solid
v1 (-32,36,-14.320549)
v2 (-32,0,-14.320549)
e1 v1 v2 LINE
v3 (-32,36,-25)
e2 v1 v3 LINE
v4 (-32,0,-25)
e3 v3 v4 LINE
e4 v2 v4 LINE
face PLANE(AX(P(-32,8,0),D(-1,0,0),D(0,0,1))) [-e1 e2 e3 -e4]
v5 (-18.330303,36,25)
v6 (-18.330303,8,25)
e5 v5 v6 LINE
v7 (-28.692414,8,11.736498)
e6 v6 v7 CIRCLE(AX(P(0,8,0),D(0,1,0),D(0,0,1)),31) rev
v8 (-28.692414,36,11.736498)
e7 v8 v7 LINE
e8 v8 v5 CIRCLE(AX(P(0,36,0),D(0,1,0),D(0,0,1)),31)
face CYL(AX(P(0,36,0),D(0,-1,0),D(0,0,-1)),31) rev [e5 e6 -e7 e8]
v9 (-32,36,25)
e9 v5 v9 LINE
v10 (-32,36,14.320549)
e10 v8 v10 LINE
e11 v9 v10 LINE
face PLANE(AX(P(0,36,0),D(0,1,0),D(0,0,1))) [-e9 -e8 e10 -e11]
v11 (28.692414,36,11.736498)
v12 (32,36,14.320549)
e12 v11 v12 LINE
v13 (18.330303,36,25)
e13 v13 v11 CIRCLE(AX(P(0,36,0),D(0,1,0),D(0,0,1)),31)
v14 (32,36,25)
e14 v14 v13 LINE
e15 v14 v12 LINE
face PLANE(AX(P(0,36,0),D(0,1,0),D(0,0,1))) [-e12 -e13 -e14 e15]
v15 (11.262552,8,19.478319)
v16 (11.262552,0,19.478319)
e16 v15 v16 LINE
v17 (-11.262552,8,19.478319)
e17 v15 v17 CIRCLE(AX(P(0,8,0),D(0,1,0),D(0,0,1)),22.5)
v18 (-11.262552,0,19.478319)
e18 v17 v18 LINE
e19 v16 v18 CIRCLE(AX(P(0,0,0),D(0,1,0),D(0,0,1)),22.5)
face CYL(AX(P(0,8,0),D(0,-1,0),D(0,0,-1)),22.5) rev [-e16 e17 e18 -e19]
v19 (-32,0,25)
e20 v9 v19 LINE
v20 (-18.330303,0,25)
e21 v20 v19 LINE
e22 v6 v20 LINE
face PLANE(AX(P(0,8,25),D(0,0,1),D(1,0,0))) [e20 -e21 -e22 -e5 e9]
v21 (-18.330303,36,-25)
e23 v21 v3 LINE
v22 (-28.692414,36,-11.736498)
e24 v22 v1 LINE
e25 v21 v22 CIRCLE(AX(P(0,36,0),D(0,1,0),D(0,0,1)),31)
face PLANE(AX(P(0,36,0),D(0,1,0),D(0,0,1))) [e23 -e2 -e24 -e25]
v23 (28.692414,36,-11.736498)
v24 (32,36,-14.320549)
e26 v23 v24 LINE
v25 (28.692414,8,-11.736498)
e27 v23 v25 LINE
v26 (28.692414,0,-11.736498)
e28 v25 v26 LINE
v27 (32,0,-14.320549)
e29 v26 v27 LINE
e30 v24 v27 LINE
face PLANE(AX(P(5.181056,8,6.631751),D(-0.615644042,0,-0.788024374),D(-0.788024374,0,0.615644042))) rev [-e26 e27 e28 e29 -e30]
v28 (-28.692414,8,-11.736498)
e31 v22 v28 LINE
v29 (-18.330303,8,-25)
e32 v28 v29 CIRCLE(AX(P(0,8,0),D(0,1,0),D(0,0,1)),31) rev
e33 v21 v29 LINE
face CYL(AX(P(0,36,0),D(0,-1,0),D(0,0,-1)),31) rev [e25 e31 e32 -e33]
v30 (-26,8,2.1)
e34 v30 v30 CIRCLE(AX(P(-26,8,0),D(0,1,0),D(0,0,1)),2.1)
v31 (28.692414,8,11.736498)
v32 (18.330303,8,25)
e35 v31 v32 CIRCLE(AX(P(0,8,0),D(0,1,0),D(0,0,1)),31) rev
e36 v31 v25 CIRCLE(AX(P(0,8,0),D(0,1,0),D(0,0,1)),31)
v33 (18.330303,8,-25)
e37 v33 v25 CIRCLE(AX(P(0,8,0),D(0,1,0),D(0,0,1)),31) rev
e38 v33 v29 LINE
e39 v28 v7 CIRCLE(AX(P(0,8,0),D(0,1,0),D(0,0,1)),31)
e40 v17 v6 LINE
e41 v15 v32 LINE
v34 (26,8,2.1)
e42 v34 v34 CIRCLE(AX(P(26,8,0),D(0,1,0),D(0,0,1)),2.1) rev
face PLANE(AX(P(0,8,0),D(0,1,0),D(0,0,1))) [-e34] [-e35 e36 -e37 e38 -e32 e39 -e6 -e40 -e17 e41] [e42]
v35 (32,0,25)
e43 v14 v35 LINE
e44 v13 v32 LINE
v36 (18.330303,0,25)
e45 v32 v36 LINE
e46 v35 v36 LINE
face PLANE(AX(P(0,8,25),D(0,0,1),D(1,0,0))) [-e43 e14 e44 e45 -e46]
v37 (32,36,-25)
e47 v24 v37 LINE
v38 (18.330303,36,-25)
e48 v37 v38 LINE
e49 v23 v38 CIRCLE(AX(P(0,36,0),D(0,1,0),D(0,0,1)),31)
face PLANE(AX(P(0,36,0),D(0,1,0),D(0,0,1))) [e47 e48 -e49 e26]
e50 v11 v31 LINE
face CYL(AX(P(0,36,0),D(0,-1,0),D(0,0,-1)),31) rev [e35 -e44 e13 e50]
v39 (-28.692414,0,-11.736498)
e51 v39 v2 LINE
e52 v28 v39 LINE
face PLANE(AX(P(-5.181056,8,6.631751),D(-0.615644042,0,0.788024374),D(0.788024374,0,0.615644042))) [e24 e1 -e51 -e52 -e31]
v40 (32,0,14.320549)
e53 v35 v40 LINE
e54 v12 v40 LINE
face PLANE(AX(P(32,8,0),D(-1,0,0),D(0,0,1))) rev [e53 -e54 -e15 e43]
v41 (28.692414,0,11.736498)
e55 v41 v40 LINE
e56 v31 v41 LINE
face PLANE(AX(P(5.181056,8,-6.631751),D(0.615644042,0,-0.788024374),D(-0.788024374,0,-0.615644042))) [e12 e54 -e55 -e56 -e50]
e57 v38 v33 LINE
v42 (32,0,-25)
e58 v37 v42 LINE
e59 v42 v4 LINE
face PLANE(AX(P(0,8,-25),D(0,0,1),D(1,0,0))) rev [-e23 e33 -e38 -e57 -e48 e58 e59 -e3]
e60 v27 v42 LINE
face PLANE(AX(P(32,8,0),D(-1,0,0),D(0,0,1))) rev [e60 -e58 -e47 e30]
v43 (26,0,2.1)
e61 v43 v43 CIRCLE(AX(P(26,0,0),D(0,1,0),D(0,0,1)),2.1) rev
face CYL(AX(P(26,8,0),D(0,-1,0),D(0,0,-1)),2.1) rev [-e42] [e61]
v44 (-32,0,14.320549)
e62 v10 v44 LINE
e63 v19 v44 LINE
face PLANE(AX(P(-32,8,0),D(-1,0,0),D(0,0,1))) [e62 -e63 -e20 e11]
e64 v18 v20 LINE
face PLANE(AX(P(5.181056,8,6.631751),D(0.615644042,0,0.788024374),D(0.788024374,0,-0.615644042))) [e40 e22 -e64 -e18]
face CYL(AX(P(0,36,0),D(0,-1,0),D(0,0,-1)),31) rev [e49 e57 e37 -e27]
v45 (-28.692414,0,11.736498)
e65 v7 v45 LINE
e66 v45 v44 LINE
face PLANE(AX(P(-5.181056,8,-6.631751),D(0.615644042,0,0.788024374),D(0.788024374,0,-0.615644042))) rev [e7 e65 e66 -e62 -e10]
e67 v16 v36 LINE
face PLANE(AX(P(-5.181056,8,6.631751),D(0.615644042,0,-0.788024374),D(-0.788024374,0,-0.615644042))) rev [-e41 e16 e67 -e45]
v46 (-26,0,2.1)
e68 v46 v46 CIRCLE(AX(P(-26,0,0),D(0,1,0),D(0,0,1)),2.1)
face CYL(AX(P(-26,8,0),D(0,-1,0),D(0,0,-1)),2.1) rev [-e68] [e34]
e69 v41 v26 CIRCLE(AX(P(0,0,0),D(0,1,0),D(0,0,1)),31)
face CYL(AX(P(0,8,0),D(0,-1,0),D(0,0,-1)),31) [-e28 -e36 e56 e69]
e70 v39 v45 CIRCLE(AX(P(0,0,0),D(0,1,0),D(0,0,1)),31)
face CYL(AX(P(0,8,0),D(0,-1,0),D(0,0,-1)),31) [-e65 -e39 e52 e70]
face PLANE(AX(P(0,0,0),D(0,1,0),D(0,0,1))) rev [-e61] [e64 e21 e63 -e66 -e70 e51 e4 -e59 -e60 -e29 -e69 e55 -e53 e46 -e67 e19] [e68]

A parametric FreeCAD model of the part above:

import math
import FreeCAD as App
import Part
import Sketcher
Q = App.Units.Quantity

doc = App.newDocument("Part")
body = doc.addObject("PartDesign::Body", "Body")

# Sketch on XZ plane
sketch1 = body.newObject("Sketcher::SketchObject", "Sketch")
sketch1.AttachmentSupport = (doc.getObject("XZ_Plane"), [""])
sketch1.MapMode = "FlatFace"
sketch1.addGeometry([
    Part.LineSegment(App.Vector(18.330303, 25, 0), App.Vector(32, 25, 0)),  # 0
    Part.LineSegment(App.Vector(32, 25, 0), App.Vector(32, 14.320549, 0)),  # 1
    Part.LineSegment(App.Vector(32, 14.320549, 0), App.Vector(28.692414, 11.736498, 0)),  # 2
    Part.ArcOfCircle(Part.Circle(App.Vector(0, 0, 0), App.Vector(0, 0, 1), 31), math.radians(-22.246786), math.radians(22.246786)),  # 3
    Part.LineSegment(App.Vector(28.692414, -11.736498, 0), App.Vector(32, -14.320549, 0)),  # 4
    Part.LineSegment(App.Vector(32, -14.320549, 0), App.Vector(32, -25, 0)),  # 5
    Part.LineSegment(App.Vector(32, -25, 0), App.Vector(-32, -25, 0)),  # 6
    Part.LineSegment(App.Vector(-32, -25, 0), App.Vector(-32, -14.320549, 0)),  # 7
    Part.LineSegment(App.Vector(-32, -14.320549, 0), App.Vector(-28.692414, -11.736498, 0)),  # 8
    Part.ArcOfCircle(Part.Circle(App.Vector(0, 0, 0), App.Vector(0, 0, 1), 31), math.radians(157.753214), math.radians(202.246786)),  # 9
    Part.LineSegment(App.Vector(-28.692414, 11.736498, 0), App.Vector(-32, 14.320549, 0)),  # 10
    Part.LineSegment(App.Vector(-32, 14.320549, 0), App.Vector(-32, 25, 0)),  # 11
    Part.LineSegment(App.Vector(-32, 25, 0), App.Vector(-18.330303, 25, 0)),  # 12
    Part.LineSegment(App.Vector(-18.330303, 25, 0), App.Vector(-11.262552, 19.478319, 0)),  # 13
    Part.ArcOfCircle(Part.Circle(App.Vector(0, 0, 0), App.Vector(0, 0, 1), 22.5), math.radians(120.036914), math.radians(419.963086)),  # 14
    Part.LineSegment(App.Vector(11.262552, 19.478319, 0), App.Vector(18.330303, 25, 0)),  # 15
    Part.Circle(App.Vector(-26, 0, 0), App.Vector(0, 0, 1), 2.1),  # 16
    Part.Circle(App.Vector(26, 0, 0), App.Vector(0, 0, 1), 2.1),  # 17
], False)
sketch1.addConstraint([
    Sketcher.Constraint("Coincident", 0, 2, 1, 1),
    Sketcher.Constraint("Coincident", 1, 2, 2, 1),
    Sketcher.Constraint("Coincident", 2, 2, 3, 2),
    Sketcher.Constraint("Coincident", 3, 1, 4, 1),
    Sketcher.Constraint("Coincident", 4, 2, 5, 1),
    Sketcher.Constraint("Coincident", 5, 2, 6, 1),
    Sketcher.Constraint("Coincident", 6, 2, 7, 1),
    Sketcher.Constraint("Coincident", 7, 2, 8, 1),
    Sketcher.Constraint("Coincident", 8, 2, 9, 2),
    Sketcher.Constraint("Coincident", 9, 1, 10, 1),
    Sketcher.Constraint("Coincident", 10, 2, 11, 1),
    Sketcher.Constraint("Coincident", 11, 2, 12, 1),
    Sketcher.Constraint("Coincident", 12, 2, 13, 1),
    Sketcher.Constraint("Coincident", 13, 2, 14, 1),
    Sketcher.Constraint("Coincident", 14, 2, 15, 1),
    Sketcher.Constraint("Coincident", 15, 2, 0, 1),
    Sketcher.Constraint("Horizontal", 0),
    Sketcher.Constraint("Vertical", 1),
    Sketcher.Constraint("Vertical", 5),
    Sketcher.Constraint("Horizontal", 6),
    Sketcher.Constraint("Vertical", 7),
    Sketcher.Constraint("Vertical", 11),
    Sketcher.Constraint("Horizontal", 12),
    Sketcher.Constraint("Coincident", 3, 3, -1, 1),
    Sketcher.Constraint("Coincident", 9, 3, -1, 1),
    Sketcher.Constraint("Coincident", 14, 3, -1, 1),
    Sketcher.Constraint("Equal", 3, 9),
    Sketcher.Constraint("Equal", 16, 17),
    Sketcher.Constraint("Symmetric", 16, 3, 17, 3, -1, 1),
    Sketcher.Constraint("Symmetric", 0, 2, 6, 2, -1, 1),
    Sketcher.Constraint("Symmetric", 4, 2, 10, 2, -1, 1),
    Sketcher.Constraint("Symmetric", 4, 2, 7, 2, -2),
    Sketcher.Constraint("Symmetric", 12, 2, 15, 2, -2),
    Sketcher.Constraint("PointOnObject", 16, 3, -1),
    Sketcher.Constraint("Parallel", 2, 8),
    Sketcher.Constraint("Parallel", 4, 10),
    Sketcher.Constraint("Parallel", 10, 13),
    Sketcher.Constraint("Parallel", 8, 15),
    Sketcher.Constraint("Horizontal", 3, 1, 8, 2),
    Sketcher.Constraint("Horizontal", 2, 2, 9, 1),
    Sketcher.Constraint("Radius", 3, Q("31 mm")),
    Sketcher.Constraint("Diameter", 16, Q("4.2 mm")),
    Sketcher.Constraint("Radius", 14, Q("22.5 mm")),
    Sketcher.Constraint("DistanceX", 6, 2, 6, 1, Q("64 mm")),
    Sketcher.Constraint("DistanceX", 16, 3, -1, 1, Q("26 mm")),
    Sketcher.Constraint("DistanceY", -1, 1, 0, 2, Q("25 mm")),
    Sketcher.Constraint("DistanceY", 1, 2, 1, 1, Q("10.679451 mm")),
    Sketcher.Constraint("Distance", 13, Q("8.96895 mm")),
    Sketcher.Constraint("DistanceX", 0, 1, 0, 2, Q("13.669697 mm")),
])
pad1 = body.newObject("PartDesign::Pad", "Pad")
pad1.Profile = sketch1
pad1.Length = 8
pad1.Reversed = True

# Sketch on XZ plane
sketch2 = body.newObject("Sketcher::SketchObject", "Sketch001")
sketch2.AttachmentSupport = (doc.getObject("XZ_Plane"), [""])
sketch2.MapMode = "FlatFace"
sketch2.addGeometry([
    Part.LineSegment(App.Vector(28.692414, -11.736498, 0), App.Vector(32, -14.320549, 0)),  # 0
    Part.LineSegment(App.Vector(32, -14.320549, 0), App.Vector(32, -25, 0)),  # 1
    Part.LineSegment(App.Vector(32, -25, 0), App.Vector(18.330303, -25, 0)),  # 2
    Part.ArcOfCircle(Part.Circle(App.Vector(0, 0, 0), App.Vector(0, 0, 1), 31), math.radians(-53.750679), math.radians(-22.246786)),  # 3
    Part.LineSegment(App.Vector(-32, -25, 0), App.Vector(-32, -14.320549, 0)),  # 4
    Part.LineSegment(App.Vector(-32, -14.320549, 0), App.Vector(-28.692414, -11.736498, 0)),  # 5
    Part.ArcOfCircle(Part.Circle(App.Vector(0, 0, 0), App.Vector(0, 0, 1), 31), math.radians(-157.753214), math.radians(-126.249321)),  # 6
    Part.LineSegment(App.Vector(-18.330303, -25, 0), App.Vector(-32, -25, 0)),  # 7
    Part.LineSegment(App.Vector(-32, 14.320549, 0), App.Vector(-32, 25, 0)),  # 8
    Part.LineSegment(App.Vector(-32, 25, 0), App.Vector(-18.330303, 25, 0)),  # 9
    Part.ArcOfCircle(Part.Circle(App.Vector(0, 0, 0), App.Vector(0, 0, 1), 31), math.radians(126.249321), math.radians(142.001268)),  # 10
    Part.ArcOfCircle(Part.Circle(App.Vector(0, 0, 0), App.Vector(0, 0, 1), 31), math.radians(142.001268), math.radians(157.753214)),  # 11
    Part.LineSegment(App.Vector(-28.692414, 11.736498, 0), App.Vector(-32, 14.320549, 0)),  # 12
    Part.LineSegment(App.Vector(18.330303, 25, 0), App.Vector(32, 25, 0)),  # 13
    Part.LineSegment(App.Vector(32, 25, 0), App.Vector(32, 14.320549, 0)),  # 14
    Part.LineSegment(App.Vector(32, 14.320549, 0), App.Vector(28.692414, 11.736498, 0)),  # 15
    Part.ArcOfCircle(Part.Circle(App.Vector(0, 0, 0), App.Vector(0, 0, 1), 31), math.radians(22.246786), math.radians(53.750679)),  # 16
], False)
sketch2.addConstraint([
    Sketcher.Constraint("Coincident", 0, 2, 1, 1),
    Sketcher.Constraint("Coincident", 1, 2, 2, 1),
    Sketcher.Constraint("Coincident", 2, 2, 3, 1),
    Sketcher.Constraint("Coincident", 3, 2, 0, 1),
    Sketcher.Constraint("Coincident", 4, 2, 5, 1),
    Sketcher.Constraint("Coincident", 5, 2, 6, 1),
    Sketcher.Constraint("Coincident", 6, 2, 7, 1),
    Sketcher.Constraint("Coincident", 7, 2, 4, 1),
    Sketcher.Constraint("Coincident", 8, 2, 9, 1),
    Sketcher.Constraint("Coincident", 9, 2, 10, 1),
    Sketcher.Constraint("Tangent", 10, 2, 11, 1),
    Sketcher.Constraint("Coincident", 11, 2, 12, 1),
    Sketcher.Constraint("Coincident", 12, 2, 8, 1),
    Sketcher.Constraint("Coincident", 13, 2, 14, 1),
    Sketcher.Constraint("Coincident", 14, 2, 15, 1),
    Sketcher.Constraint("Coincident", 15, 2, 16, 1),
    Sketcher.Constraint("Coincident", 16, 2, 13, 1),
    Sketcher.Constraint("Vertical", 1),
    Sketcher.Constraint("Horizontal", 2),
    Sketcher.Constraint("Vertical", 4),
    Sketcher.Constraint("Horizontal", 7),
    Sketcher.Constraint("Vertical", 8),
    Sketcher.Constraint("Horizontal", 9),
    Sketcher.Constraint("Horizontal", 13),
    Sketcher.Constraint("Vertical", 14),
    Sketcher.Constraint("Coincident", 3, 3, -1, 1),
    Sketcher.Constraint("Coincident", 6, 3, -1, 1),
    Sketcher.Constraint("Coincident", 10, 3, -1, 1),
    Sketcher.Constraint("Coincident", 16, 3, -1, 1),
    Sketcher.Constraint("Equal", 3, 6),
    Sketcher.Constraint("Equal", 6, 10),
    Sketcher.Constraint("Equal", 10, 11),
    Sketcher.Constraint("Equal", 11, 16),
    Sketcher.Constraint("Symmetric", 1, 2, 8, 2, -1, 1),
    Sketcher.Constraint("Symmetric", 7, 2, 13, 2, -1, 1),
    Sketcher.Constraint("Symmetric", 0, 2, 4, 2, -2),
    Sketcher.Constraint("Parallel", 0, 12),
    Sketcher.Constraint("Parallel", 5, 15),
    Sketcher.Constraint("Horizontal", 3, 2, 5, 2),
    Sketcher.Constraint("Horizontal", 2, 2, 6, 2),
    Sketcher.Constraint("Horizontal", 12, 2, 14, 2),
    Sketcher.Constraint("Vertical", 5, 2, 11, 2),
    Sketcher.Constraint("Radius", 3, Q("31 mm")),
    Sketcher.Constraint("DistanceX", -1, 1, 0, 2, Q("32 mm")),
    Sketcher.Constraint("DistanceY", 1, 2, -1, 1, Q("25 mm")),
    Sketcher.Constraint("DistanceY", 1, 2, 1, 1, Q("10.679451 mm")),
    Sketcher.Constraint("DistanceY", 0, 2, 3, 2, Q("2.584052 mm")),
    Sketcher.Constraint("DistanceX", 11, 2, 10, 2, Q("4.263658 mm")),
])
pad2 = body.newObject("PartDesign::Pad", "Pad001")
pad2.Profile = sketch2
pad2.Length = 36
pad2.Reversed = True

doc.recompute()
